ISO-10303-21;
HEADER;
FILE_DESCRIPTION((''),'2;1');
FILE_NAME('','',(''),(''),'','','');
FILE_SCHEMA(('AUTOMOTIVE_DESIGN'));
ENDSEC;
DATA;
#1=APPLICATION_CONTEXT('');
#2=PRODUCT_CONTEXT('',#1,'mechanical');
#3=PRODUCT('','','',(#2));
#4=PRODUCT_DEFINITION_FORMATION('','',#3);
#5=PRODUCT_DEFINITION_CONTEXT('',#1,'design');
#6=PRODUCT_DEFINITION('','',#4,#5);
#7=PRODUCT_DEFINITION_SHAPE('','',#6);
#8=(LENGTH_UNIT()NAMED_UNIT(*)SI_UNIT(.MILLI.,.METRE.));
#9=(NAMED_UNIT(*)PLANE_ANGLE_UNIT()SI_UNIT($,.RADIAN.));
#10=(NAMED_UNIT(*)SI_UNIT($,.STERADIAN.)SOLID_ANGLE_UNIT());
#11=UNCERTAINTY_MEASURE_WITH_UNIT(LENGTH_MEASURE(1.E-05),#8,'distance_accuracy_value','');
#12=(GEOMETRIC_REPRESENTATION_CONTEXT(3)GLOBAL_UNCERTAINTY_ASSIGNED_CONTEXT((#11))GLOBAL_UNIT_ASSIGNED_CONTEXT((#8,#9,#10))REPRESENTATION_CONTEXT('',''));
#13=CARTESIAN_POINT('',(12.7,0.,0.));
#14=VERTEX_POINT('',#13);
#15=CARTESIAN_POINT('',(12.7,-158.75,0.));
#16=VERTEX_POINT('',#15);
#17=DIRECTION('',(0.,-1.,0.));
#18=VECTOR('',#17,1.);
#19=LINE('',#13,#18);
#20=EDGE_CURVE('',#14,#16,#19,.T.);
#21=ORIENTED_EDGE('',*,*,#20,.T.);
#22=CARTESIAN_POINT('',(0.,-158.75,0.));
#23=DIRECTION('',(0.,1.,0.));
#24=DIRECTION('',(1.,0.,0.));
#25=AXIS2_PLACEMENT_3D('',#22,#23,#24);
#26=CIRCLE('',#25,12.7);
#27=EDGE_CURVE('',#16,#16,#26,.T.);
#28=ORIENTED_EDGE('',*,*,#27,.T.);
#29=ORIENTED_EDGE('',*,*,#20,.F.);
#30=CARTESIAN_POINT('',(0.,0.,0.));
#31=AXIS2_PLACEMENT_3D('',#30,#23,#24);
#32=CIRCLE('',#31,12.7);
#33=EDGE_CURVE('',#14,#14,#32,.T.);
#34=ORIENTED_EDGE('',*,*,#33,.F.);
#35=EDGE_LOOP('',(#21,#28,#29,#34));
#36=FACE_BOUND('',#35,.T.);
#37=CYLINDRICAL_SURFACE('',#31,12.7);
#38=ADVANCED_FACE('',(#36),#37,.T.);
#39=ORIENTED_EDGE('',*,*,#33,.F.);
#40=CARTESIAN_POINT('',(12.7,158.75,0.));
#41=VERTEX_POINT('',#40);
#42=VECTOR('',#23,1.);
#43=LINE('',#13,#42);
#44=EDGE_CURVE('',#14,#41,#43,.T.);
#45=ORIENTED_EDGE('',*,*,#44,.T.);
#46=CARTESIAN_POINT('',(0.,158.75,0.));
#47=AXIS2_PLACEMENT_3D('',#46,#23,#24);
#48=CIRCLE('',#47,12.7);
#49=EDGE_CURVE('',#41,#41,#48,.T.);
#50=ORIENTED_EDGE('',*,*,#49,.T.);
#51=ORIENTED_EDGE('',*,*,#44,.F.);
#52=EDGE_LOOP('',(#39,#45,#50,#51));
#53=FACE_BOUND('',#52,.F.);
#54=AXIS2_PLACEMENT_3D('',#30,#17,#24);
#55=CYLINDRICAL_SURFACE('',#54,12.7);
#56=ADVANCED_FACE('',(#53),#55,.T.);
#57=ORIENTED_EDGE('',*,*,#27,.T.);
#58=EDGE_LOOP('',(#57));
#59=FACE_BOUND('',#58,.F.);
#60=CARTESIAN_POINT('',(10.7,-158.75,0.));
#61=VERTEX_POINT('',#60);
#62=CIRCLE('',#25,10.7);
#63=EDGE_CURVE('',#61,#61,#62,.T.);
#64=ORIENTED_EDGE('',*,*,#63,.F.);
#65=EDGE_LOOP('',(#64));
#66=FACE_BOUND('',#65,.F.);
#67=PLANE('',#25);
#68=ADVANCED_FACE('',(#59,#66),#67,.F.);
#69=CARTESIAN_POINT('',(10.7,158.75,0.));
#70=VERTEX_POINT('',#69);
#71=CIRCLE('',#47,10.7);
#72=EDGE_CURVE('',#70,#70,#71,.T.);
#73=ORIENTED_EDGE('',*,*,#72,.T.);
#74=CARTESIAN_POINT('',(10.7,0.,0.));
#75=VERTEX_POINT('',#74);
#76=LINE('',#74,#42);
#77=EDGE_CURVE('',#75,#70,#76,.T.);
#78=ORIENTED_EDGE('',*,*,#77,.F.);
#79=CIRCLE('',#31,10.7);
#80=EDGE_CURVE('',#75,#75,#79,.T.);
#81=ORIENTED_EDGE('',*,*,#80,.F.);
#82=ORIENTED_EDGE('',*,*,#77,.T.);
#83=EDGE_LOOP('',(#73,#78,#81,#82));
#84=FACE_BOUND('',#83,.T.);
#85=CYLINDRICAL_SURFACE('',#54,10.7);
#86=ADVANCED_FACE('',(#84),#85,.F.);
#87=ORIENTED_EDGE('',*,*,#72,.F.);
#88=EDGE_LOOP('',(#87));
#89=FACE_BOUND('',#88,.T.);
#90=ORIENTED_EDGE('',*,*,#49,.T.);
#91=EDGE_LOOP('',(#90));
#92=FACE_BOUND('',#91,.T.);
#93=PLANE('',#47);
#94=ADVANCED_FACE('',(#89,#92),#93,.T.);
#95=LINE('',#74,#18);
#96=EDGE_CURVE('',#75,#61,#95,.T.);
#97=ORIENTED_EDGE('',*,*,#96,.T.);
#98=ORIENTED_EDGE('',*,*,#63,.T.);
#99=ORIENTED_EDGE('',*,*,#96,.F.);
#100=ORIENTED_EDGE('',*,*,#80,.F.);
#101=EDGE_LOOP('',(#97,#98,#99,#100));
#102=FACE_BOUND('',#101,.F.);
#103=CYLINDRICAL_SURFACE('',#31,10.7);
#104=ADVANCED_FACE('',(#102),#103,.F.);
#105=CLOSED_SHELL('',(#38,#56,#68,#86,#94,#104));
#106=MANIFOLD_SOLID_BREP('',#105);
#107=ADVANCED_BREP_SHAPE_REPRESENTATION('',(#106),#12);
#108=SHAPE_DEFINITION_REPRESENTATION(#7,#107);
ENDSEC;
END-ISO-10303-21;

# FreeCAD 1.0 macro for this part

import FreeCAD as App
import Part
import Sketcher

V = App.Vector
Q = App.Units.Quantity

doc = App.newDocument("Part")
body = doc.addObject("PartDesign::Body", "Body")

sketch1 = body.newObject("Sketcher::SketchObject", "Sketch")
sketch1.AttachmentSupport = (doc.getObject("XZ_Plane"), [""])
sketch1.MapMode = "FlatFace"
sketch1.addGeometry(Part.Circle(V(0, 0, 0), V(0, 0, 1), 13), False)
sketch1.addGeometry(Part.Circle(V(0, 0, 0), V(0, 0, 1), 11), False)
sketch1.addConstraint(Sketcher.Constraint("Coincident", 0, 3, -1, 1))
sketch1.addConstraint(Sketcher.Constraint("Coincident", 1, 3, -1, 1))
sketch1.addConstraint(Sketcher.Constraint("Diameter", 0, Q("1 in")))
sketch1.addConstraint(Sketcher.Constraint("Diameter", 1, 21.4))
pad1 = body.newObject("PartDesign::Pad", "Pad")
pad1.Profile = sketch1
pad1.Length = Q("12.5 in")
pad1.Midplane = True

doc.recompute()
